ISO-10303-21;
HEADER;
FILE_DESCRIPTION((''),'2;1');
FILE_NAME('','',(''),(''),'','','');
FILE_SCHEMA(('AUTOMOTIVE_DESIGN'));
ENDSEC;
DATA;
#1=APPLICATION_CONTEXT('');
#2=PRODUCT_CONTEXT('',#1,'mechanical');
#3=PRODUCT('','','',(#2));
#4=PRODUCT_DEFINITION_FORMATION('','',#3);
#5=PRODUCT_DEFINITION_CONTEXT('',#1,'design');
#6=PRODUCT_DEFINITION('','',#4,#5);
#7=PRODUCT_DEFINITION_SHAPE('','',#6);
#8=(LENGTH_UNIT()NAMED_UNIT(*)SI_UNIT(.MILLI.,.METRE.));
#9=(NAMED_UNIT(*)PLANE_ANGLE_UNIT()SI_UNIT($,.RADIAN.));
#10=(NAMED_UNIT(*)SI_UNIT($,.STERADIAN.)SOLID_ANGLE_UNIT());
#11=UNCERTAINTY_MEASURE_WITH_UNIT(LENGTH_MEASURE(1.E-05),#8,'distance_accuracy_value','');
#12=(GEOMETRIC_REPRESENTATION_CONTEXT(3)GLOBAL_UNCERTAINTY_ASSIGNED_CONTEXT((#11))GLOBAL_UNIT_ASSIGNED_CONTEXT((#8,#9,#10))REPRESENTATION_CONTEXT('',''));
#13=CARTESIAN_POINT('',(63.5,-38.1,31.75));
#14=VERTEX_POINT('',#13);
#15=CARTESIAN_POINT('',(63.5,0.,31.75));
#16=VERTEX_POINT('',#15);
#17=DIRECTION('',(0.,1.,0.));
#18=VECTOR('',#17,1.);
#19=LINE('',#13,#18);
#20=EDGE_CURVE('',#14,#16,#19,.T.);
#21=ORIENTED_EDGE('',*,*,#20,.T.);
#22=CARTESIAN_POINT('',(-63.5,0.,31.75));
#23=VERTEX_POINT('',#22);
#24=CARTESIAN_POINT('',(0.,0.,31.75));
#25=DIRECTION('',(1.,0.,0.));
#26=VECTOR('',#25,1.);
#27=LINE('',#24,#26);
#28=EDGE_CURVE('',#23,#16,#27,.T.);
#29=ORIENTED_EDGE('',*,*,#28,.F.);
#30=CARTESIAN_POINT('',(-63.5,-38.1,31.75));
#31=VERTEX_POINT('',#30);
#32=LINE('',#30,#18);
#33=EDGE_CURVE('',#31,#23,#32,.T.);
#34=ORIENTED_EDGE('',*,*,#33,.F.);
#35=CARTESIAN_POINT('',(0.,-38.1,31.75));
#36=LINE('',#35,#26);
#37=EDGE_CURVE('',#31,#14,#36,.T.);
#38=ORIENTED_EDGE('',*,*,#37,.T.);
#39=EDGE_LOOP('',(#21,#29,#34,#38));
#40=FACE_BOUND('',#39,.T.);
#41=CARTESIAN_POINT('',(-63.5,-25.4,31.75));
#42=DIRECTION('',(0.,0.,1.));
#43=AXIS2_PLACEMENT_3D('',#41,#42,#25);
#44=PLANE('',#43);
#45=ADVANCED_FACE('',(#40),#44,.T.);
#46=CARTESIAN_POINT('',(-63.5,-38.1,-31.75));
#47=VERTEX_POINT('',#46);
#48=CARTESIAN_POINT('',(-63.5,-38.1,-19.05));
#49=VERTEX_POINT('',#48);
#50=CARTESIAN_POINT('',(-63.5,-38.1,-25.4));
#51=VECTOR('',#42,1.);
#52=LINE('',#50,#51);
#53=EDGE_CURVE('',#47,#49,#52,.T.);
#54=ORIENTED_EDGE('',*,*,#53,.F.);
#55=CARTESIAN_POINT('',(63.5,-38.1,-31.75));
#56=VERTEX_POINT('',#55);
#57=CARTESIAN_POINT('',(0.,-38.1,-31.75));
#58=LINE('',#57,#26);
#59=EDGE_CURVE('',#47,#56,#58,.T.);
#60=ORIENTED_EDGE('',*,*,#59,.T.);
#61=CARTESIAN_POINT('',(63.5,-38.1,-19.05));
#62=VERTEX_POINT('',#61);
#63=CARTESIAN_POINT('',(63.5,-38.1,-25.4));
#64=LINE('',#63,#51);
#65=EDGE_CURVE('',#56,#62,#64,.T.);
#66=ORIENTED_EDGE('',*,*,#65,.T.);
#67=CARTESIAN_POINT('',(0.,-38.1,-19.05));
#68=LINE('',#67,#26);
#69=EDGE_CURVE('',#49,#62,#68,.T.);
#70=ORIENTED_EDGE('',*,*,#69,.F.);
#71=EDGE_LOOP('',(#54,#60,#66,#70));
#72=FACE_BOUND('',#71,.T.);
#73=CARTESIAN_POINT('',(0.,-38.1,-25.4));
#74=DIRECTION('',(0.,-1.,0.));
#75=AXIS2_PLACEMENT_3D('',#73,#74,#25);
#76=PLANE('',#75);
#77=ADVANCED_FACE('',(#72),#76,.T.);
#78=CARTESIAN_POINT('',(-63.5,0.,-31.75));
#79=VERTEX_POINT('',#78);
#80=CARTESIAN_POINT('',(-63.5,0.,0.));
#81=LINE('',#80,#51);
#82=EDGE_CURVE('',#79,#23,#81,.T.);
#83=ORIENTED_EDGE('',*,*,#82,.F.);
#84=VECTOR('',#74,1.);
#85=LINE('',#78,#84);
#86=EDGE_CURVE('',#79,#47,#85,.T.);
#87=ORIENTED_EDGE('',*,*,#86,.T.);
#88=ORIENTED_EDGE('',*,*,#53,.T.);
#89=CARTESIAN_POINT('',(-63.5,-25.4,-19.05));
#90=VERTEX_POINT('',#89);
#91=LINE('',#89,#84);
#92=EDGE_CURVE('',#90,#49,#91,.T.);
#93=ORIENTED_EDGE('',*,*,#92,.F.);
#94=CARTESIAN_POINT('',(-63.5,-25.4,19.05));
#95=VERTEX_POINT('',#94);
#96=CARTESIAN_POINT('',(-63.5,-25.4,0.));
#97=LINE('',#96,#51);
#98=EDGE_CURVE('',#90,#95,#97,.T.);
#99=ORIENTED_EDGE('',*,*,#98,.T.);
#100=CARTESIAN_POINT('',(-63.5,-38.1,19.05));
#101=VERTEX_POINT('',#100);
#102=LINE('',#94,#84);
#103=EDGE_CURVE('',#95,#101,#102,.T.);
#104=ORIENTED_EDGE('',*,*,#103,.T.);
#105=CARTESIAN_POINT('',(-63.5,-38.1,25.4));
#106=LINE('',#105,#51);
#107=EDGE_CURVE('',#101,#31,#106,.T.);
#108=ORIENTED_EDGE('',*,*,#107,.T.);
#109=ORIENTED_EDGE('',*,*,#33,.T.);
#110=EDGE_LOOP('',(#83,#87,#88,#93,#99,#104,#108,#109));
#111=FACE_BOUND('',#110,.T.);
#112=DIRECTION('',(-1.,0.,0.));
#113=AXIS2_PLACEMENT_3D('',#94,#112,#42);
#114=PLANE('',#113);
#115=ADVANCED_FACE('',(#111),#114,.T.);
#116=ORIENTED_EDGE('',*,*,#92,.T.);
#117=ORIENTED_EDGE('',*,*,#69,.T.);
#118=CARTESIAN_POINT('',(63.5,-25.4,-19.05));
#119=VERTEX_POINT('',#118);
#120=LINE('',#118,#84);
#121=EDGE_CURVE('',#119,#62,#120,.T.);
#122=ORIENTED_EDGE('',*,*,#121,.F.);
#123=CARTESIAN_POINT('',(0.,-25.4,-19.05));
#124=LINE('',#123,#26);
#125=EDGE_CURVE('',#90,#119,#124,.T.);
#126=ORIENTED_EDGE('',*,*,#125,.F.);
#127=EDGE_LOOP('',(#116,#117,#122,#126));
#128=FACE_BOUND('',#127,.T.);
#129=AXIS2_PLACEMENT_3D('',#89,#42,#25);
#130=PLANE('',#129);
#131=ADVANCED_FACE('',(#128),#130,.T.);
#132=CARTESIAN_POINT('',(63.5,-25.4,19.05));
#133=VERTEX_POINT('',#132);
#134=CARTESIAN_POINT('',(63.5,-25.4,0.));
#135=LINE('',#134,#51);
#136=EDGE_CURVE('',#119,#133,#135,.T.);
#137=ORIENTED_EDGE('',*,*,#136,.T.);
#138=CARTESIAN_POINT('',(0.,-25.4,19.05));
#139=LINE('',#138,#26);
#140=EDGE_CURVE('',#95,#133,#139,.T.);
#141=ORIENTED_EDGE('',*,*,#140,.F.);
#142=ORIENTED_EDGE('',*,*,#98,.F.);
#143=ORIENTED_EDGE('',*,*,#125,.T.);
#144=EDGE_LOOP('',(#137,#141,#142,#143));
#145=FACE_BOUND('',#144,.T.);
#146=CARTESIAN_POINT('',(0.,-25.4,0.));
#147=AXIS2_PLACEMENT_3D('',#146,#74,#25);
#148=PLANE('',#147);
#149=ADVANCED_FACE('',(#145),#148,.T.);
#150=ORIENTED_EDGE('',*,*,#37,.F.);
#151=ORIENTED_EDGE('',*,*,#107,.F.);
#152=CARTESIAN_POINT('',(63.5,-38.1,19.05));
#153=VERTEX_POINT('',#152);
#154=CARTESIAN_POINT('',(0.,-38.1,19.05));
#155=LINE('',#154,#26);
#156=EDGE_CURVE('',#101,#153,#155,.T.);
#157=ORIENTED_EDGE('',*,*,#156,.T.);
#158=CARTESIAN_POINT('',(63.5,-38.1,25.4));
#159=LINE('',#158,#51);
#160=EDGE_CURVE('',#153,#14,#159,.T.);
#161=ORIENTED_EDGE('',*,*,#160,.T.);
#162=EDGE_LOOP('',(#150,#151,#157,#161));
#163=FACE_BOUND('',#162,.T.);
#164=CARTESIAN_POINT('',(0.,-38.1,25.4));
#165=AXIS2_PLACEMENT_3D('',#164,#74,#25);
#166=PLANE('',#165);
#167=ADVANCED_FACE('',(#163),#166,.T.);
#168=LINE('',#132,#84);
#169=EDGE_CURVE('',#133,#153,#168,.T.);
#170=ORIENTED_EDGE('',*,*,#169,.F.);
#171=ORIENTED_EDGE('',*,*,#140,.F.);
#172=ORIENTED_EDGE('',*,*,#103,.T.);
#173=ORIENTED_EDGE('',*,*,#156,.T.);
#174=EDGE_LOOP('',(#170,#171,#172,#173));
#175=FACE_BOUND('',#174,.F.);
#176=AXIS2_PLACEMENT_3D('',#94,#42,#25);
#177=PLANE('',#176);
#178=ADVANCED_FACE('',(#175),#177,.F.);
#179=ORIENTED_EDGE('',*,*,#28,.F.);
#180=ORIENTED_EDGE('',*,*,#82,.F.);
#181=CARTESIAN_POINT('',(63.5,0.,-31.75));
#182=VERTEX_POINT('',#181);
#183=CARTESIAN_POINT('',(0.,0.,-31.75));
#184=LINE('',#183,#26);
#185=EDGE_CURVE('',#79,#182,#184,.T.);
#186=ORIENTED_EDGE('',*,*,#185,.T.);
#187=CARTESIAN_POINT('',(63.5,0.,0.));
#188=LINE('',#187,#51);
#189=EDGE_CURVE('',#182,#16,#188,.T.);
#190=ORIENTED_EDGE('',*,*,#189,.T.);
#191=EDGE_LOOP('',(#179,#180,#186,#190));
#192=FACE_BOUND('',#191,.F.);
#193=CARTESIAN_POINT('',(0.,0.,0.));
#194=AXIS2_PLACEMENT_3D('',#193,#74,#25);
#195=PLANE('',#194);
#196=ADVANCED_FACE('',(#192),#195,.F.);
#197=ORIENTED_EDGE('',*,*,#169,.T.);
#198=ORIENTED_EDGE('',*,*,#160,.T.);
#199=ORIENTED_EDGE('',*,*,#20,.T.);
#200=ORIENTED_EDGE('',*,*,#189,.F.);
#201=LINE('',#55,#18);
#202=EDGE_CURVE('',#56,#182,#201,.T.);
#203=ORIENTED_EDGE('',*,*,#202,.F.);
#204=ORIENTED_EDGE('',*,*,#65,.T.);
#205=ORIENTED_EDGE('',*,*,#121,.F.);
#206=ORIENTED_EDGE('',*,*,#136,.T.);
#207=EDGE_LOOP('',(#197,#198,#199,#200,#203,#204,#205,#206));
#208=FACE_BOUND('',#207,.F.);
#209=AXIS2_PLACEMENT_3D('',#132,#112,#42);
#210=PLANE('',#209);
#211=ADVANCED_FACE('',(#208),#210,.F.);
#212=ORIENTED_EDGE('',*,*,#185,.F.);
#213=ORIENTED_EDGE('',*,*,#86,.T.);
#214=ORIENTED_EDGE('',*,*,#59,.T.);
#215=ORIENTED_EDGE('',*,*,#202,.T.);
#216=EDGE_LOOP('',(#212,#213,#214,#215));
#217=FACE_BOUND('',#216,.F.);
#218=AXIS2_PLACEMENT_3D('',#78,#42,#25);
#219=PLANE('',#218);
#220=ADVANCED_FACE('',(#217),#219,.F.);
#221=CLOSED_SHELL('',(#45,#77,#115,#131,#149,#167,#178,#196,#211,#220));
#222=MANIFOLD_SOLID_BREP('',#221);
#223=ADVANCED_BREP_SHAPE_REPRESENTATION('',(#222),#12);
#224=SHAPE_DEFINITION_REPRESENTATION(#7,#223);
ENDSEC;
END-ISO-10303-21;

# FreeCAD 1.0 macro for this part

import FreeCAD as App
import Part
import Sketcher
from FreeCAD import Vector
Q = App.Units.Quantity


def add_polygon(sketch, points):
    """Adds a closed chain of lines whose ends are joined by coincident constraints."""
    first, n = sketch.GeometryCount, len(points)
    for a, b in zip(points, points[1:] + points[:1]):
        sketch.addGeometry(Part.LineSegment(App.Vector(*a, 0), App.Vector(*b, 0)), False)
    for i in range(n):
        sketch.addConstraint(Sketcher.Constraint("Coincident", first + i, 2, first + (i + 1) % n, 1))

doc = App.newDocument("Part")
body = doc.addObject("PartDesign::Body", "Body")

sketch1 = body.newObject("Sketcher::SketchObject", "Sketch")
sketch1.AttachmentSupport = (doc.getObject("XZ_Plane"), [""])
sketch1.MapMode = "FlatFace"
add_polygon(sketch1, [(-64, 32), (-64, -32), (64, -32), (64, 32)])
sketch1.addConstraint([
    Sketcher.Constraint("Vertical", 0),
    Sketcher.Constraint("Horizontal", 1),
    Sketcher.Constraint("Vertical", 2),
    Sketcher.Constraint("Horizontal", 3),
    Sketcher.Constraint("Symmetric", 0, 2, 2, 2, -1, 1),
    Sketcher.Constraint("DistanceX", 1, 1, 1, 2, Q("5 in")),
    Sketcher.Constraint("DistanceY", 0, 2, 0, 1, Q("2.5 in")),
])
pad1 = body.newObject("PartDesign::Pad", "Pad")
pad1.Profile = sketch1
pad1.Length = Q("1 in")

sketch2 = body.newObject("Sketcher::SketchObject", "Sketch001")
sketch2.AttachmentSupport = (doc.getObject("XZ_Plane"), [""])
sketch2.MapMode = "FlatFace"
sketch2.AttachmentOffset = App.Placement(Vector(0, 0, 1 * 25.4), App.Rotation())
add_polygon(sketch2, [(-64, 32), (-64, 19), (64, 19), (64, 32)])
add_polygon(sketch2, [(-64, -19), (-64, -32), (64, -32), (64, -19)])
sketch2.addConstraint([
    Sketcher.Constraint("Vertical", 0),
    Sketcher.Constraint("Horizontal", 1),
    Sketcher.Constraint("Vertical", 2),
    Sketcher.Constraint("Horizontal", 3),
    Sketcher.Constraint("Vertical", 4),
    Sketcher.Constraint("Horizontal", 5),
    Sketcher.Constraint("Vertical", 6),
    Sketcher.Constraint("Horizontal", 7),
    Sketcher.Constraint("Symmetric", 2, 2, 4, 2, -1, 1),
    Sketcher.Constraint("Symmetric", 0, 2, 6, 2, -1, 1),
    Sketcher.Constraint("Vertical", 3, 2, 4, 2),
    Sketcher.Constraint("DistanceX", 1, 1, 1, 2, Q("5 in")),
    Sketcher.Constraint("DistanceY", 0, 2, 0, 1, Q("0.5 in")),
    Sketcher.Constraint("DistanceY", 4, 2, 0, 2, Q("2 in")),
])
pad2 = body.newObject("PartDesign::Pad", "Pad001")
pad2.Profile = sketch2
pad2.Length = Q("0.5 in")

doc.recompute()
